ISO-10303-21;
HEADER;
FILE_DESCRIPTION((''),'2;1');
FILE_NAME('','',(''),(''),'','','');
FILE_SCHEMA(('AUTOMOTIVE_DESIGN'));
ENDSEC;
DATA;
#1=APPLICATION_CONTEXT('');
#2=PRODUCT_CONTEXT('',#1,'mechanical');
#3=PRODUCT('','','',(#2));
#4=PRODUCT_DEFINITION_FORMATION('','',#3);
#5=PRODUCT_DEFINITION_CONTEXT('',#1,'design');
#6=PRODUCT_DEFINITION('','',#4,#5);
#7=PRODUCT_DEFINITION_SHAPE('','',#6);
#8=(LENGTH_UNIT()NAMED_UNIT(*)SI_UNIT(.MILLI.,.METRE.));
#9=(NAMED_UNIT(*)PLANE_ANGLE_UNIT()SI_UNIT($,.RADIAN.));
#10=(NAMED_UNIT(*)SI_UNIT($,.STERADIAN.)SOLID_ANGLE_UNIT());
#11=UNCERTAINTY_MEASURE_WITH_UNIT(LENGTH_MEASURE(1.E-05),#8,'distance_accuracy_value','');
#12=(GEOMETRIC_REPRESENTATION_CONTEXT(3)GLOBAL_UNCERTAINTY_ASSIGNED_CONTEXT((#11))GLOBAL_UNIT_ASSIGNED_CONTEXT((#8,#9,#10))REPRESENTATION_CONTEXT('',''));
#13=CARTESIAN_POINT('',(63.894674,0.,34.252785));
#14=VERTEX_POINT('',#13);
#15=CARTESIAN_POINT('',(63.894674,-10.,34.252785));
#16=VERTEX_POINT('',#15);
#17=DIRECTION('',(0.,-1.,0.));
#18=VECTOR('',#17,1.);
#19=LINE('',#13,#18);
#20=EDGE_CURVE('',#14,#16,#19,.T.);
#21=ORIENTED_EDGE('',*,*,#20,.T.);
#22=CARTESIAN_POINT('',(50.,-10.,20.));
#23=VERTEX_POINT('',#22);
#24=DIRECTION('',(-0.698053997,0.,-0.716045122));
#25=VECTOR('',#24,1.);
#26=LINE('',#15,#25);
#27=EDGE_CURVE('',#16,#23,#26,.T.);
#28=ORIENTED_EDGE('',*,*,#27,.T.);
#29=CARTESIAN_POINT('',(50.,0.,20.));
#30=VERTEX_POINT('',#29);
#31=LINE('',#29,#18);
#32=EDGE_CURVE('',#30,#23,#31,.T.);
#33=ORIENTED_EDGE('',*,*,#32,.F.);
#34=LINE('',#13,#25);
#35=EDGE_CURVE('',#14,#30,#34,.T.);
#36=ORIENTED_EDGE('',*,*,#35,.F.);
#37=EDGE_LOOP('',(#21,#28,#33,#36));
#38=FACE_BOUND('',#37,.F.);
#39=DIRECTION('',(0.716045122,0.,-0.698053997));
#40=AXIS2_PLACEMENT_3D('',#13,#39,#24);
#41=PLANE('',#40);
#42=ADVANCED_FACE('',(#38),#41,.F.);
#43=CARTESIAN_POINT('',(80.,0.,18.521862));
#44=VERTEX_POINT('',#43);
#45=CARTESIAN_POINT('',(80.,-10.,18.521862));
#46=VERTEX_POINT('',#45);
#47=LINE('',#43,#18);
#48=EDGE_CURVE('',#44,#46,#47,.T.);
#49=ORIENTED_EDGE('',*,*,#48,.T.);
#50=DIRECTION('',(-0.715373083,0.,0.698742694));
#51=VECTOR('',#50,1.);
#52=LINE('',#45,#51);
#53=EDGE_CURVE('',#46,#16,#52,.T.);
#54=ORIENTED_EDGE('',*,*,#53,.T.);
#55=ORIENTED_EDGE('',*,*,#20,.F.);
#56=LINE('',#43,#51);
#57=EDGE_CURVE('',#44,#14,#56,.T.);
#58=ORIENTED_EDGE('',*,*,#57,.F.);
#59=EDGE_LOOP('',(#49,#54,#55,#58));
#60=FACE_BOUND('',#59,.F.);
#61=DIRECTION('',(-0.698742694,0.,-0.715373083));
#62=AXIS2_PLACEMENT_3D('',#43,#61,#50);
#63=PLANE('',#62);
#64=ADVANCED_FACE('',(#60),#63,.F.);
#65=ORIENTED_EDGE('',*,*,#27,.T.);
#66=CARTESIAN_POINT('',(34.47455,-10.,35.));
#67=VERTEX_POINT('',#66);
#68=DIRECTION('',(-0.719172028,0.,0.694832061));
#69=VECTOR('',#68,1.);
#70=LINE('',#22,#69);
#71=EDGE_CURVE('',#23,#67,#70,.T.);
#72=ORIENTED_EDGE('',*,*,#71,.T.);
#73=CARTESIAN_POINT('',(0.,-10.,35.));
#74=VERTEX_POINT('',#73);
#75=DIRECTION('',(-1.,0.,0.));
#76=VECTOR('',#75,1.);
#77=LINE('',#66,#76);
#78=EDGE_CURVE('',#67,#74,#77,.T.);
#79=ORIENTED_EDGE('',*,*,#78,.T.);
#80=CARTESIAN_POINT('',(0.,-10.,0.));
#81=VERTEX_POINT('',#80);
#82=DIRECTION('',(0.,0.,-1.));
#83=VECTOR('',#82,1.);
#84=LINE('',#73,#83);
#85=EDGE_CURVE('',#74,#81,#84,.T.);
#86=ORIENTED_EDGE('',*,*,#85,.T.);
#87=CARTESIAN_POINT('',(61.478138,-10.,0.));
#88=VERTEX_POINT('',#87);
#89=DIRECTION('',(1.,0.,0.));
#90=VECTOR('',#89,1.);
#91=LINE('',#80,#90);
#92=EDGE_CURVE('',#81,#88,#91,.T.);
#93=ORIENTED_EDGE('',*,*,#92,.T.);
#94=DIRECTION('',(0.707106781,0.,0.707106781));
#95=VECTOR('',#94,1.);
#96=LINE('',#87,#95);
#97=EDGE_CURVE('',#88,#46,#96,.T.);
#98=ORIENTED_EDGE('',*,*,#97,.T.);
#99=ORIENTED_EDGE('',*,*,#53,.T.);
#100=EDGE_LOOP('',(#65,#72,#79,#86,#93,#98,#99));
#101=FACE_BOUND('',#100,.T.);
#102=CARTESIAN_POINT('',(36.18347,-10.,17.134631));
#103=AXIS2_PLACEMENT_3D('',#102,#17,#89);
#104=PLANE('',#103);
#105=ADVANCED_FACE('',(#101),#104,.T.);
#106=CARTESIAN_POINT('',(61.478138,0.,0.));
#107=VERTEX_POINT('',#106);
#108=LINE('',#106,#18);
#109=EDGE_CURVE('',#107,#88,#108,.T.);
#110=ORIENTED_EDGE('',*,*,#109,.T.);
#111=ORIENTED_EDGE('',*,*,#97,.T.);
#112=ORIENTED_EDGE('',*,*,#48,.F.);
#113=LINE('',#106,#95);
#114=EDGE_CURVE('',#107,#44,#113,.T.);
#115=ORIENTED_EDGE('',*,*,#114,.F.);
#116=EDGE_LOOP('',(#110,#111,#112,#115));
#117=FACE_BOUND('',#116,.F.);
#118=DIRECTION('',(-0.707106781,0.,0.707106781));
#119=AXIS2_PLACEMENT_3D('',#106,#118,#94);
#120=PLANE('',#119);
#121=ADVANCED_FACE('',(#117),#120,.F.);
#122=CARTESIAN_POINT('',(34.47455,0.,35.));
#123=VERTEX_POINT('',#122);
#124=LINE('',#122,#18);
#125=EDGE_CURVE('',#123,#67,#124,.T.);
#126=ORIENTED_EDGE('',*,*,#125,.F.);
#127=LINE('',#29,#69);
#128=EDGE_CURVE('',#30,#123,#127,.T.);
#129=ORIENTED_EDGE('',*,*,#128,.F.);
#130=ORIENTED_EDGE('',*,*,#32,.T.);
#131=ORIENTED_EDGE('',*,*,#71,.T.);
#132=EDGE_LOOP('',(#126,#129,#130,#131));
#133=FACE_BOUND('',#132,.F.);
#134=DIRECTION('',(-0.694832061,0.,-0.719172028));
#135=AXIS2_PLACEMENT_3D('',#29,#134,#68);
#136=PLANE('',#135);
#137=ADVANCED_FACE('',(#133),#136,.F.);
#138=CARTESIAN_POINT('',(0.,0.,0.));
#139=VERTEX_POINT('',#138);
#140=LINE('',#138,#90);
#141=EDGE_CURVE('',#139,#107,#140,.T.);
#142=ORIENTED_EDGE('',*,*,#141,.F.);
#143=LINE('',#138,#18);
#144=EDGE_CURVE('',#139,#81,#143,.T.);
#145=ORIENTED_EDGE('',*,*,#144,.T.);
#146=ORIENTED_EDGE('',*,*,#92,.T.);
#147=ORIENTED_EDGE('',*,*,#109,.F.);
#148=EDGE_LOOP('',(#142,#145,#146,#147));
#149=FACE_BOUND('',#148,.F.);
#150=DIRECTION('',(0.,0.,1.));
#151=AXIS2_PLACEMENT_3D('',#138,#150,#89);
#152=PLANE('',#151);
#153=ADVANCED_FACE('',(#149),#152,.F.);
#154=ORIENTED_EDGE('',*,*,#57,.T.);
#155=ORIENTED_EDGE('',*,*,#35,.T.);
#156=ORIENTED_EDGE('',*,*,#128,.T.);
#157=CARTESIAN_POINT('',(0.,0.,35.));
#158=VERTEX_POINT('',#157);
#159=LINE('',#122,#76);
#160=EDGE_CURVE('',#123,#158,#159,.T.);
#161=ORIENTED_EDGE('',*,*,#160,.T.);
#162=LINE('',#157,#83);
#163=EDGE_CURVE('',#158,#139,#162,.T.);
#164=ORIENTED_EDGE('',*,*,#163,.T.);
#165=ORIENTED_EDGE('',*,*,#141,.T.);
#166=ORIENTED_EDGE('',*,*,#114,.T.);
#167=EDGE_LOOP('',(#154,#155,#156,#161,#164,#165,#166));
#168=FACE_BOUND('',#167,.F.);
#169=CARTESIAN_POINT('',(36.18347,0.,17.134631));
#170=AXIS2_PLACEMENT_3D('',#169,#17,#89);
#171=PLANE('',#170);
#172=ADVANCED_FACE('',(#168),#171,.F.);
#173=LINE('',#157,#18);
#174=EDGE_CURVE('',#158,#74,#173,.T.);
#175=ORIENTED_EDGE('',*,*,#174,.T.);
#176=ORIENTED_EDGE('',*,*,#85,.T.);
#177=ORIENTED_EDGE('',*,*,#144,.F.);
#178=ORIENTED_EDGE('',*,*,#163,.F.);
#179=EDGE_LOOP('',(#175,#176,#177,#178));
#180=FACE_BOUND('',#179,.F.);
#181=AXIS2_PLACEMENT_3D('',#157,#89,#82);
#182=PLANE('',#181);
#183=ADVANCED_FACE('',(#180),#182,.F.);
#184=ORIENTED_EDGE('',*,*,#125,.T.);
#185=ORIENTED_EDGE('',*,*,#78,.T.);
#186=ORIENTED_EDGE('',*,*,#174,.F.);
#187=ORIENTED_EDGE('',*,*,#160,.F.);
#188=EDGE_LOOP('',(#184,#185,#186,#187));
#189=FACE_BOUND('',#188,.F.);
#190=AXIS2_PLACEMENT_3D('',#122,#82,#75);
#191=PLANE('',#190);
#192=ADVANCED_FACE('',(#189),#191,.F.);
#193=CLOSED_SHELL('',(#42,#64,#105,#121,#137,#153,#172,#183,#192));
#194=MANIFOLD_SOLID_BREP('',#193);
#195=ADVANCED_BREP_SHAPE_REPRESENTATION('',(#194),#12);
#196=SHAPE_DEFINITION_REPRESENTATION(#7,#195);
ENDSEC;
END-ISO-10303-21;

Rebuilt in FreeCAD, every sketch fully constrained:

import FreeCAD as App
import Part
import Sketcher

V = App.Vector
Q = App.Units.Quantity

doc = App.newDocument("Part")
body = doc.addObject("PartDesign::Body", "Body")

# Sketch on XZ plane
sketch1 = body.newObject("Sketcher::SketchObject", "Sketch")
sketch1.AttachmentSupport = (doc.getObject("XZ_Plane"), [""])
sketch1.MapMode = "FlatFace"
sketch1.addGeometry(Part.LineSegment(V(0, 35, 0), V(0, 0, 0)), False)
sketch1.addGeometry(Part.LineSegment(V(0, 0, 0), V(61.478138, 0, 0)), False)
sketch1.addGeometry(Part.LineSegment(V(61.478138, 0, 0), V(80, 18.521862, 0)), False)
sketch1.addGeometry(Part.LineSegment(V(80, 18.521862, 0), V(63.894674, 34.252785, 0)), False)
sketch1.addGeometry(Part.LineSegment(V(63.894674, 34.252785, 0), V(50, 20, 0)), False)
sketch1.addGeometry(Part.LineSegment(V(50, 20, 0), V(34.47455, 35, 0)), False)
sketch1.addGeometry(Part.LineSegment(V(34.47455, 35, 0), V(0, 35, 0)), False)
sketch1.addConstraint(Sketcher.Constraint("Coincident", 0, 2, 1, 1))
sketch1.addConstraint(Sketcher.Constraint("Coincident", 1, 2, 2, 1))
sketch1.addConstraint(Sketcher.Constraint("Coincident", 2, 2, 3, 1))
sketch1.addConstraint(Sketcher.Constraint("Coincident", 3, 2, 4, 1))
sketch1.addConstraint(Sketcher.Constraint("Coincident", 4, 2, 5, 1))
sketch1.addConstraint(Sketcher.Constraint("Coincident", 5, 2, 6, 1))
sketch1.addConstraint(Sketcher.Constraint("Coincident", 6, 2, 0, 1))
sketch1.addConstraint(Sketcher.Constraint("Vertical", 0))
sketch1.addConstraint(Sketcher.Constraint("Horizontal", 1))
sketch1.addConstraint(Sketcher.Constraint("Horizontal", 6))
sketch1.addConstraint(Sketcher.Constraint("Coincident", 0, 2, -1, 1))
sketch1.addConstraint(Sketcher.Constraint("DistanceY", 0, 2, 0, 1, Q("35 mm")))
sketch1.addConstraint(Sketcher.Constraint("Angle", 2, Q("45 deg")))
sketch1.addConstraint(Sketcher.Constraint("DistanceX", -1, 1, 2, 2, Q("80 mm")))
sketch1.addConstraint(Sketcher.Constraint("DistanceX", -1, 1, 4, 2, Q("50 mm")))
sketch1.addConstraint(Sketcher.Constraint("DistanceY", -1, 1, 4, 2, Q("20 mm")))
sketch1.addConstraint(Sketcher.Constraint("DistanceX", 6, 2, 6, 1, Q("34.47455 mm")))
sketch1.addConstraint(Sketcher.Constraint("Distance", 2, Q("26.193868 mm")))
sketch1.addConstraint(Sketcher.Constraint("Distance", 4, Q("19.90487 mm")))
sketch1.addConstraint(Sketcher.Constraint("Distance", 3, Q("22.513184 mm")))
pad1 = body.newObject("PartDesign::Pad", "Pad")
pad1.Profile = sketch1
pad1.Length = 10

doc.recompute()
